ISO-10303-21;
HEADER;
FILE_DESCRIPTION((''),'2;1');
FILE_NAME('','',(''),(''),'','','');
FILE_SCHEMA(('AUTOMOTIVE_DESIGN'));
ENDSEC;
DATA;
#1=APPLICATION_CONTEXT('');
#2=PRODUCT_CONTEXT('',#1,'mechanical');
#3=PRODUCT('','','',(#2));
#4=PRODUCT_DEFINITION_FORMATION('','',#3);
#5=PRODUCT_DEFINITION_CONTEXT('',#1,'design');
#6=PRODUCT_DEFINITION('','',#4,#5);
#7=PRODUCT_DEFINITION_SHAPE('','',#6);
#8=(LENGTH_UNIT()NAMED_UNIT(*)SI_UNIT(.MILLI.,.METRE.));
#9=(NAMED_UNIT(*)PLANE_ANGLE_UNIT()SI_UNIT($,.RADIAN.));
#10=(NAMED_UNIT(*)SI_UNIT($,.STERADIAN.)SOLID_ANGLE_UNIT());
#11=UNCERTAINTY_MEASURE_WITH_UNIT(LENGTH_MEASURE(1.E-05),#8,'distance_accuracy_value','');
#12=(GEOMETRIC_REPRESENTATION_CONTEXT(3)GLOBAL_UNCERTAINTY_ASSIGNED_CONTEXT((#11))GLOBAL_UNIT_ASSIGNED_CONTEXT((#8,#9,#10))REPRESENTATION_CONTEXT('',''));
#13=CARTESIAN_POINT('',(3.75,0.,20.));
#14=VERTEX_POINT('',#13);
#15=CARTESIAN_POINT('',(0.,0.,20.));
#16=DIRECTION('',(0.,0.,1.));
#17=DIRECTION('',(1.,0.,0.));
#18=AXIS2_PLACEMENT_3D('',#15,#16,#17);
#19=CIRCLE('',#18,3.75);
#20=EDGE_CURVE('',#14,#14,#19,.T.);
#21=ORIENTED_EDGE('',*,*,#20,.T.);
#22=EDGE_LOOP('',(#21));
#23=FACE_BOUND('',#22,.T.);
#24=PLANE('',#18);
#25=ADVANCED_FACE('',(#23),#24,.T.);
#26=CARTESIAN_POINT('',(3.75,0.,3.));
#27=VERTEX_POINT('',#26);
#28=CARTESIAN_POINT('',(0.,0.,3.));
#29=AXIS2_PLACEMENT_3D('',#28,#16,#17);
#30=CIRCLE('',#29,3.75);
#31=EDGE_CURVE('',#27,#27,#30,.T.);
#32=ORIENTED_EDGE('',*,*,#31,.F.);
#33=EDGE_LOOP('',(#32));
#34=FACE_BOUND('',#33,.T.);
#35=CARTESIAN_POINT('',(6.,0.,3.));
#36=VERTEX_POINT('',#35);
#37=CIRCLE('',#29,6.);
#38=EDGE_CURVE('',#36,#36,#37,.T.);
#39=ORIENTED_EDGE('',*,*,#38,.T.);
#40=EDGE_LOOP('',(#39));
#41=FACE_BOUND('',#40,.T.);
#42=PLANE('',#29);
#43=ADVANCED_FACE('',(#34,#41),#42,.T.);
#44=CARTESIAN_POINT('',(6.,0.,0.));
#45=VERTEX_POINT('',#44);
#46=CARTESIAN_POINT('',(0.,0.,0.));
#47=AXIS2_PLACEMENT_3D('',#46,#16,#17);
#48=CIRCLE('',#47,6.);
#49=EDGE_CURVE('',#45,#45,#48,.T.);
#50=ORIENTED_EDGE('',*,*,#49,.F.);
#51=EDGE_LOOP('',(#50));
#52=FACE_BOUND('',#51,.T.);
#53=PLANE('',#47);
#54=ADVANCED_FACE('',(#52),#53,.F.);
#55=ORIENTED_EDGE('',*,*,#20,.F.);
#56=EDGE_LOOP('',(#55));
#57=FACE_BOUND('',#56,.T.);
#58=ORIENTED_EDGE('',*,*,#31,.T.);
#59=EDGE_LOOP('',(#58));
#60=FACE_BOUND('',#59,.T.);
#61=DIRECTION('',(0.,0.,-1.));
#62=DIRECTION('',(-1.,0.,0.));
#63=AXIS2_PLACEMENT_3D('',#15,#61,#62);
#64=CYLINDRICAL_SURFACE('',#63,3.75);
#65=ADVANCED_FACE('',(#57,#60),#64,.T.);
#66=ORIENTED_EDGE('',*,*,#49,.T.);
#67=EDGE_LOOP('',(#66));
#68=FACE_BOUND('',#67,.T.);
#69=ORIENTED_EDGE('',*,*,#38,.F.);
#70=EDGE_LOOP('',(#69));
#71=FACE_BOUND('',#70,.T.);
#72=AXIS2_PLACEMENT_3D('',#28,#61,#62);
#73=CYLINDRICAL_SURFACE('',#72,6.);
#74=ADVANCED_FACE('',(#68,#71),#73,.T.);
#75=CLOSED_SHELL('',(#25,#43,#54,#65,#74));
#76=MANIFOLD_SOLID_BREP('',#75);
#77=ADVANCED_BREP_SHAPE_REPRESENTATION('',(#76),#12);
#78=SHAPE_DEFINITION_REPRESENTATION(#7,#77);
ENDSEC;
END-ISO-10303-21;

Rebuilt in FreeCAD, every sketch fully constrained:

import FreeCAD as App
import Part
import Sketcher
from FreeCAD import Vector
Q = App.Units.Quantity

doc = App.newDocument("Part")
body = doc.addObject("PartDesign::Body", "Body")

# Sketch on XY plane
sketch1 = doc.addObject("Sketcher::SketchObject", "Sketch")
body.addObject(sketch1)
sketch1.AttachmentSupport = (doc.XY_Plane, [""])
sketch1.MapMode = "FlatFace"
sketch1.addGeometry([
    Part.Circle(Vector(0, 0, 0), Vector(0, 0, 1), 6),
    Part.Circle(Vector(0, 0, 0), Vector(0, 0, 1), 3.8),
], False)
sketch1.addConstraint([
    Sketcher.Constraint("Coincident", 0, 3, -1, 1),
    Sketcher.Constraint("Coincident", 1, 3, -1, 1),
    Sketcher.Constraint("Diameter", 0, Q("12 mm")),
    Sketcher.Constraint("Diameter", 1, Q("7.5 mm")),
])
pad1 = doc.addObject("PartDesign::Pad", "Pad")
body.addObject(pad1)
pad1.Profile = sketch1
pad1.Length = 3

# Sketch on XY plane
sketch2 = doc.addObject("Sketcher::SketchObject", "Sketch001")
body.addObject(sketch2)
sketch2.AttachmentSupport = (doc.XY_Plane, [""])
sketch2.MapMode = "FlatFace"
sketch2.addGeometry(Part.Circle(Vector(0, 0, 0), Vector(0, 0, 1), 3.8), False)
sketch2.addConstraint([
    Sketcher.Constraint("Coincident", 0, 3, -1, 1),
    Sketcher.Constraint("Diameter", 0, Q("7.5 mm")),
])
pad2 = doc.addObject("PartDesign::Pad", "Pad001")
body.addObject(pad2)
pad2.Profile = sketch2
pad2.Length = 20

doc.recompute()
